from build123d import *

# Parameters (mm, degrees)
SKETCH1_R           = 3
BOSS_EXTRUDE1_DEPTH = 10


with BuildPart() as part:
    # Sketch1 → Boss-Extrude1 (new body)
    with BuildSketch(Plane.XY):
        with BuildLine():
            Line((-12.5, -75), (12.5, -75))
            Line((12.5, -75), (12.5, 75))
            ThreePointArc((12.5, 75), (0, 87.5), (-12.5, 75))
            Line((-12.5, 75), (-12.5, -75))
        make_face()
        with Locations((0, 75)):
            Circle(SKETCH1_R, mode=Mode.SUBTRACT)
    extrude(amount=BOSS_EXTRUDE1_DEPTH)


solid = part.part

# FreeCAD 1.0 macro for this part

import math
import FreeCAD as App
import Part
import Sketcher
Q = App.Units.Quantity

doc = App.newDocument("Part")
body = doc.addObject("PartDesign::Body", "Body")

# Sketch on XY plane
sketch1 = doc.addObject("Sketcher::SketchObject", "Sketch")
body.addObject(sketch1)
sketch1.AttachmentSupport = (doc.XY_Plane, [""])
sketch1.MapMode = "FlatFace"
sketch1.addGeometry(Part.LineSegment(App.Vector(-12.5, -75, 0), App.Vector(12.5, -75, 0)), False)
sketch1.addGeometry(Part.LineSegment(App.Vector(12.5, -75, 0), App.Vector(12.5, 75, 0)), False)
sketch1.addGeometry(Part.ArcOfCircle(Part.Circle(App.Vector(0, 75, 0), App.Vector(0, 0, 1), 12.5), math.radians(0), math.radians(180)), False)
sketch1.addGeometry(Part.LineSegment(App.Vector(-12.5, 75, 0), App.Vector(-12.5, -75, 0)), False)
sketch1.addGeometry(Part.Circle(App.Vector(0, 75, 0), App.Vector(0, 0, 1), 3), False)
sketch1.addConstraint(Sketcher.Constraint("Coincident", 0, 2, 1, 1))
sketch1.addConstraint(Sketcher.Constraint("Tangent", 1, 2, 2, 1))
sketch1.addConstraint(Sketcher.Constraint("Tangent", 2, 2, 3, 1))
sketch1.addConstraint(Sketcher.Constraint("Coincident", 3, 2, 0, 1))
sketch1.addConstraint(Sketcher.Constraint("Horizontal", 0))
sketch1.addConstraint(Sketcher.Constraint("Vertical", 1))
sketch1.addConstraint(Sketcher.Constraint("Vertical", 3))
sketch1.addConstraint(Sketcher.Constraint("Coincident", 4, 3, 2, 3))
sketch1.addConstraint(Sketcher.Constraint("Symmetric", 0, 2, 2, 2, -1, 1))
sketch1.addConstraint(Sketcher.Constraint("Diameter", 4, Q("6 mm")))
sketch1.addConstraint(Sketcher.Constraint("Radius", 2, Q("12.5 mm")))
sketch1.addConstraint(Sketcher.Constraint("DistanceY", 1, 1, 1, 2, Q("150 mm")))
pad1 = doc.addObject("PartDesign::Pad", "Pad")
body.addObject(pad1)
pad1.Profile = sketch1
pad1.Length = 10

doc.recompute()
